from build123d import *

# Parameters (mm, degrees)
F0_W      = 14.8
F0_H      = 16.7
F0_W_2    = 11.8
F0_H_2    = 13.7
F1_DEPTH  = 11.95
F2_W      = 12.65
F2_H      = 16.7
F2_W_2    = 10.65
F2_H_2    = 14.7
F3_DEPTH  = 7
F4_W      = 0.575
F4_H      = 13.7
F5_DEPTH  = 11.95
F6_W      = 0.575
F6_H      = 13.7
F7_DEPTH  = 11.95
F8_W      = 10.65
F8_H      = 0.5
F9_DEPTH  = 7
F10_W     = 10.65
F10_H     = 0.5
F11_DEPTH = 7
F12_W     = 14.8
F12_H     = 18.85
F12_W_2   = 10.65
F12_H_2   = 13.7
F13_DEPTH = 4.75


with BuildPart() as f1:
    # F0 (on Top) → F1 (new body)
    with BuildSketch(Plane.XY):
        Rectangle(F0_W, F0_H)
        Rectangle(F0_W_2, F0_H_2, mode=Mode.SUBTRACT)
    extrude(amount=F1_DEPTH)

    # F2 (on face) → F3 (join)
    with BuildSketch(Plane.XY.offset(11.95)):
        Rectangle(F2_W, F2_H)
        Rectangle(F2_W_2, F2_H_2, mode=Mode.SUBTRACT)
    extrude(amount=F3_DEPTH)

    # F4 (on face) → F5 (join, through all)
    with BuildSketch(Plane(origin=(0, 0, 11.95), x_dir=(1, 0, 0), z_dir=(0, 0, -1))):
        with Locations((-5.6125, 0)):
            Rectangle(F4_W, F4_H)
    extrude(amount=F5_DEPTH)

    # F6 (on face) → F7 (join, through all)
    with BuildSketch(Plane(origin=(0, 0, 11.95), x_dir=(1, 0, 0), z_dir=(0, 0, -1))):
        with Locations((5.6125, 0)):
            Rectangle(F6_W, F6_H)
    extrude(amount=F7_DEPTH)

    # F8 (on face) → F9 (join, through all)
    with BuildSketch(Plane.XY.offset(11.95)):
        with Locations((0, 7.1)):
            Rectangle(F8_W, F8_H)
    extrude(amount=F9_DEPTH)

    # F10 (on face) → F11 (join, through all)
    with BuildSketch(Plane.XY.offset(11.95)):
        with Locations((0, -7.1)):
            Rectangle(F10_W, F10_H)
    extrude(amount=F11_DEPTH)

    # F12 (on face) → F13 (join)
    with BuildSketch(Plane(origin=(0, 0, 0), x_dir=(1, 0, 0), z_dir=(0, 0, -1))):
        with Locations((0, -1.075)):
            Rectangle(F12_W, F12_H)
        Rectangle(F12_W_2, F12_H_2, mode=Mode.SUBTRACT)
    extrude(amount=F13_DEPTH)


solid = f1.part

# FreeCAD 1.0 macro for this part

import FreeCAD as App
import Part
import Sketcher

V = App.Vector


def add_polygon(sketch, points):
    """Adds a closed chain of lines whose ends are joined by coincident constraints."""
    first, n = sketch.GeometryCount, len(points)
    for a, b in zip(points, points[1:] + points[:1]):
        sketch.addGeometry(Part.LineSegment(App.Vector(*a, 0), App.Vector(*b, 0)), False)
    for i in range(n):
        sketch.addConstraint(Sketcher.Constraint("Coincident", first + i, 2, first + (i + 1) % n, 1))

doc = App.newDocument("Part")
body = doc.addObject("PartDesign::Body", "Body")

# Sketch on XY plane
sketch1 = body.newObject("Sketcher::SketchObject", "Sketch")
sketch1.AttachmentSupport = (doc.getObject("XY_Plane"), [""])
sketch1.MapMode = "FlatFace"
add_polygon(sketch1, [(-7, 8), (-7, -8), (7, -8), (7, 8)])  # lines 0-3
add_polygon(sketch1, [(6, -7), (-6, -7), (-6, 7), (6, 7)])  # lines 4-7
sketch1.addConstraint(Sketcher.Constraint("Vertical", 0))
sketch1.addConstraint(Sketcher.Constraint("Horizontal", 1))
sketch1.addConstraint(Sketcher.Constraint("Vertical", 2))
sketch1.addConstraint(Sketcher.Constraint("Horizontal", 3))
sketch1.addConstraint(Sketcher.Constraint("Horizontal", 4))
sketch1.addConstraint(Sketcher.Constraint("Vertical", 5))
sketch1.addConstraint(Sketcher.Constraint("Horizontal", 6))
sketch1.addConstraint(Sketcher.Constraint("Vertical", 7))
sketch1.addConstraint(Sketcher.Constraint("Symmetric", 0, 2, 2, 2, -1, 1))
sketch1.addConstraint(Sketcher.Constraint("Symmetric", 4, 2, 6, 2, -1, 1))
sketch1.addConstraint(Sketcher.Constraint("DistanceX", 1, 1, 1, 2, 14.8))
sketch1.addConstraint(Sketcher.Constraint("DistanceX", 4, 2, 4, 1, 11.8))
sketch1.addConstraint(Sketcher.Constraint("DistanceY", 0, 2, 0, 1, 16.7))
sketch1.addConstraint(Sketcher.Constraint("DistanceY", 5, 1, 5, 2, 13.7))
pad1 = body.newObject("PartDesign::Pad", "Pad")
pad1.Profile = sketch1
pad1.Length = 11.95

# Sketch on XY plane
sketch2 = body.newObject("Sketcher::SketchObject", "Sketch001")
sketch2.AttachmentSupport = (doc.getObject("XY_Plane"), [""])
sketch2.MapMode = "FlatFace"
sketch2.AttachmentOffset = App.Placement(V(0, 0, 11.95), App.Rotation())
add_polygon(sketch2, [(-6, 8), (-6, -8), (6, -8), (6, 8)])  # lines 0-3
add_polygon(sketch2, [(5, -7), (-5, -7), (-5, 7), (5, 7)])  # lines 4-7
sketch2.addConstraint(Sketcher.Constraint("Vertical", 0))
sketch2.addConstraint(Sketcher.Constraint("Horizontal", 1))
sketch2.addConstraint(Sketcher.Constraint("Vertical", 2))
sketch2.addConstraint(Sketcher.Constraint("Horizontal", 3))
sketch2.addConstraint(Sketcher.Constraint("Horizontal", 4))
sketch2.addConstraint(Sketcher.Constraint("Vertical", 5))
sketch2.addConstraint(Sketcher.Constraint("Horizontal", 6))
sketch2.addConstraint(Sketcher.Constraint("Vertical", 7))
sketch2.addConstraint(Sketcher.Constraint("Symmetric", 0, 2, 2, 2, -1, 1))
sketch2.addConstraint(Sketcher.Constraint("Symmetric", 4, 2, 6, 2, -1, 1))
sketch2.addConstraint(Sketcher.Constraint("DistanceY", 0, 2, 0, 1, 16.7))
sketch2.addConstraint(Sketcher.Constraint("DistanceY", 5, 1, 5, 2, 14.7))
sketch2.addConstraint(Sketcher.Constraint("DistanceX", 0, 2, 4, 2, 1.0))
sketch2.addConstraint(Sketcher.Constraint("DistanceX", 1, 1, 1, 2, 12.65))
pad2 = body.newObject("PartDesign::Pad", "Pad001")
pad2.Profile = sketch2
pad2.Length = 7

# Sketch on XY plane
sketch3 = body.newObject("Sketcher::SketchObject", "Sketch002")
sketch3.AttachmentSupport = (doc.getObject("XY_Plane"), [""])
sketch3.MapMode = "FlatFace"
sketch3.AttachmentOffset = App.Placement(V(0, 0, 11.95), App.Rotation())
add_polygon(sketch3, [(-5.9, -6.8), (-5.9, 6.8), (-5.3, 6.8), (-5.3, -6.8)])  # lines 0-3
sketch3.addConstraint(Sketcher.Constraint("Vertical", 0))
sketch3.addConstraint(Sketcher.Constraint("Horizontal", 1))
sketch3.addConstraint(Sketcher.Constraint("Vertical", 2))
sketch3.addConstraint(Sketcher.Constraint("Horizontal", 3))
sketch3.addConstraint(Sketcher.Constraint("DistanceY", 0, 1, 0, 2, 13.7))
sketch3.addConstraint(Sketcher.Constraint("DistanceX", 0, 2, -1, 1, 5.9))
sketch3.addConstraint(Sketcher.Constraint("DistanceX", 1, 1, 1, 2, 0.575))
sketch3.addConstraint(Sketcher.Constraint("DistanceY", -1, 1, 0, 2, 6.85))
pad3 = body.newObject("PartDesign::Pad", "Pad002")
pad3.Profile = sketch3
pad3.Length = 11.95
pad3.Reversed = True

# Sketch on XY plane
sketch4 = body.newObject("Sketcher::SketchObject", "Sketch003")
sketch4.AttachmentSupport = (doc.getObject("XY_Plane"), [""])
sketch4.MapMode = "FlatFace"
sketch4.AttachmentOffset = App.Placement(V(0, 0, 11.95), App.Rotation())
add_polygon(sketch4, [(5.3, -6.8), (5.3, 6.8), (5.9, 6.8), (5.9, -6.8)])  # lines 0-3
sketch4.addConstraint(Sketcher.Constraint("Vertical", 0))
sketch4.addConstraint(Sketcher.Constraint("Horizontal", 1))
sketch4.addConstraint(Sketcher.Constraint("Vertical", 2))
sketch4.addConstraint(Sketcher.Constraint("Horizontal", 3))
sketch4.addConstraint(Sketcher.Constraint("DistanceY", 0, 1, 0, 2, 13.7))
sketch4.addConstraint(Sketcher.Constraint("DistanceX", -1, 1, 1, 2, 5.9))
sketch4.addConstraint(Sketcher.Constraint("DistanceX", 1, 1, 1, 2, 0.575))
sketch4.addConstraint(Sketcher.Constraint("DistanceY", -1, 1, 0, 2, 6.85))
pad4 = body.newObject("PartDesign::Pad", "Pad003")
pad4.Profile = sketch4
pad4.Length = 11.95
pad4.Reversed = True

# Sketch on XY plane
sketch5 = body.newObject("Sketcher::SketchObject", "Sketch004")
sketch5.AttachmentSupport = (doc.getObject("XY_Plane"), [""])
sketch5.MapMode = "FlatFace"
sketch5.AttachmentOffset = App.Placement(V(0, 0, 11.95), App.Rotation())
add_polygon(sketch5, [(-5.3, 7.3), (-5.3, 6.8), (5.3, 6.8), (5.3, 7.3)])  # lines 0-3
sketch5.addConstraint(Sketcher.Constraint("Vertical", 0))
sketch5.addConstraint(Sketcher.Constraint("Horizontal", 1))
sketch5.addConstraint(Sketcher.Constraint("Vertical", 2))
sketch5.addConstraint(Sketcher.Constraint("Horizontal", 3))
sketch5.addConstraint(Sketcher.Constraint("DistanceY", 0, 2, 0, 1, 0.5))
sketch5.addConstraint(Sketcher.Constraint("DistanceX", 1, 1, 1, 2, 10.65))
sketch5.addConstraint(Sketcher.Constraint("DistanceY", -1, 1, 0, 2, 6.85))
sketch5.addConstraint(Sketcher.Constraint("DistanceX", 0, 2, -1, 1, 5.325))
pad5 = body.newObject("PartDesign::Pad", "Pad004")
pad5.Profile = sketch5
pad5.Length = 7

# Sketch on XY plane
sketch6 = body.newObject("Sketcher::SketchObject", "Sketch005")
sketch6.AttachmentSupport = (doc.getObject("XY_Plane"), [""])
sketch6.MapMode = "FlatFace"
sketch6.AttachmentOffset = App.Placement(V(0, 0, 11.95), App.Rotation())
add_polygon(sketch6, [(-5.3, -6.8), (-5.3, -7.3), (5.3, -7.3), (5.3, -6.8)])  # lines 0-3
sketch6.addConstraint(Sketcher.Constraint("Vertical", 0))
sketch6.addConstraint(Sketcher.Constraint("Horizontal", 1))
sketch6.addConstraint(Sketcher.Constraint("Vertical", 2))
sketch6.addConstraint(Sketcher.Constraint("Horizontal", 3))
sketch6.addConstraint(Sketcher.Constraint("DistanceY", 0, 2, 0, 1, 0.5))
sketch6.addConstraint(Sketcher.Constraint("DistanceX", 1, 1, 1, 2, 10.65))
sketch6.addConstraint(Sketcher.Constraint("DistanceY", 0, 2, -1, 1, 7.35))
sketch6.addConstraint(Sketcher.Constraint("DistanceX", 0, 2, -1, 1, 5.325))
pad6 = body.newObject("PartDesign::Pad", "Pad005")
pad6.Profile = sketch6
pad6.Length = 7

# Sketch on XY plane
sketch7 = body.newObject("Sketcher::SketchObject", "Sketch006")
sketch7.AttachmentSupport = (doc.getObject("XY_Plane"), [""])
sketch7.MapMode = "FlatFace"
add_polygon(sketch7, [(-7, -8), (-7, 10), (7, 10), (7, -8)])  # lines 0-3
add_polygon(sketch7, [(5, 7), (-5, 7), (-5, -7), (5, -7)])  # lines 4-7
sketch7.addConstraint(Sketcher.Constraint("Vertical", 0))
sketch7.addConstraint(Sketcher.Constraint("Horizontal", 1))
sketch7.addConstraint(Sketcher.Constraint("Vertical", 2))
sketch7.addConstraint(Sketcher.Constraint("Horizontal", 3))
sketch7.addConstraint(Sketcher.Constraint("Horizontal", 4))
sketch7.addConstraint(Sketcher.Constraint("Vertical", 5))
sketch7.addConstraint(Sketcher.Constraint("Horizontal", 6))
sketch7.addConstraint(Sketcher.Constraint("Vertical", 7))
sketch7.addConstraint(Sketcher.Constraint("Symmetric", 4, 2, 6, 2, -1, 1))
sketch7.addConstraint(Sketcher.Constraint("DistanceX", 1, 1, 1, 2, 14.8))
sketch7.addConstraint(Sketcher.Constraint("DistanceY", 5, 2, 5, 1, 13.7))
sketch7.addConstraint(Sketcher.Constraint("DistanceX", 4, 2, 4, 1, 10.65))
sketch7.addConstraint(Sketcher.Constraint("DistanceY", 0, 1, 0, 2, 18.85))
sketch7.addConstraint(Sketcher.Constraint("DistanceX", 0, 2, -1, 1, 7.4))
sketch7.addConstraint(Sketcher.Constraint("DistanceY", -1, 1, 0, 2, 10.5))
pad7 = body.newObject("PartDesign::Pad", "Pad006")
pad7.Profile = sketch7
pad7.Length = 4.75
pad7.Reversed = True

doc.recompute()
